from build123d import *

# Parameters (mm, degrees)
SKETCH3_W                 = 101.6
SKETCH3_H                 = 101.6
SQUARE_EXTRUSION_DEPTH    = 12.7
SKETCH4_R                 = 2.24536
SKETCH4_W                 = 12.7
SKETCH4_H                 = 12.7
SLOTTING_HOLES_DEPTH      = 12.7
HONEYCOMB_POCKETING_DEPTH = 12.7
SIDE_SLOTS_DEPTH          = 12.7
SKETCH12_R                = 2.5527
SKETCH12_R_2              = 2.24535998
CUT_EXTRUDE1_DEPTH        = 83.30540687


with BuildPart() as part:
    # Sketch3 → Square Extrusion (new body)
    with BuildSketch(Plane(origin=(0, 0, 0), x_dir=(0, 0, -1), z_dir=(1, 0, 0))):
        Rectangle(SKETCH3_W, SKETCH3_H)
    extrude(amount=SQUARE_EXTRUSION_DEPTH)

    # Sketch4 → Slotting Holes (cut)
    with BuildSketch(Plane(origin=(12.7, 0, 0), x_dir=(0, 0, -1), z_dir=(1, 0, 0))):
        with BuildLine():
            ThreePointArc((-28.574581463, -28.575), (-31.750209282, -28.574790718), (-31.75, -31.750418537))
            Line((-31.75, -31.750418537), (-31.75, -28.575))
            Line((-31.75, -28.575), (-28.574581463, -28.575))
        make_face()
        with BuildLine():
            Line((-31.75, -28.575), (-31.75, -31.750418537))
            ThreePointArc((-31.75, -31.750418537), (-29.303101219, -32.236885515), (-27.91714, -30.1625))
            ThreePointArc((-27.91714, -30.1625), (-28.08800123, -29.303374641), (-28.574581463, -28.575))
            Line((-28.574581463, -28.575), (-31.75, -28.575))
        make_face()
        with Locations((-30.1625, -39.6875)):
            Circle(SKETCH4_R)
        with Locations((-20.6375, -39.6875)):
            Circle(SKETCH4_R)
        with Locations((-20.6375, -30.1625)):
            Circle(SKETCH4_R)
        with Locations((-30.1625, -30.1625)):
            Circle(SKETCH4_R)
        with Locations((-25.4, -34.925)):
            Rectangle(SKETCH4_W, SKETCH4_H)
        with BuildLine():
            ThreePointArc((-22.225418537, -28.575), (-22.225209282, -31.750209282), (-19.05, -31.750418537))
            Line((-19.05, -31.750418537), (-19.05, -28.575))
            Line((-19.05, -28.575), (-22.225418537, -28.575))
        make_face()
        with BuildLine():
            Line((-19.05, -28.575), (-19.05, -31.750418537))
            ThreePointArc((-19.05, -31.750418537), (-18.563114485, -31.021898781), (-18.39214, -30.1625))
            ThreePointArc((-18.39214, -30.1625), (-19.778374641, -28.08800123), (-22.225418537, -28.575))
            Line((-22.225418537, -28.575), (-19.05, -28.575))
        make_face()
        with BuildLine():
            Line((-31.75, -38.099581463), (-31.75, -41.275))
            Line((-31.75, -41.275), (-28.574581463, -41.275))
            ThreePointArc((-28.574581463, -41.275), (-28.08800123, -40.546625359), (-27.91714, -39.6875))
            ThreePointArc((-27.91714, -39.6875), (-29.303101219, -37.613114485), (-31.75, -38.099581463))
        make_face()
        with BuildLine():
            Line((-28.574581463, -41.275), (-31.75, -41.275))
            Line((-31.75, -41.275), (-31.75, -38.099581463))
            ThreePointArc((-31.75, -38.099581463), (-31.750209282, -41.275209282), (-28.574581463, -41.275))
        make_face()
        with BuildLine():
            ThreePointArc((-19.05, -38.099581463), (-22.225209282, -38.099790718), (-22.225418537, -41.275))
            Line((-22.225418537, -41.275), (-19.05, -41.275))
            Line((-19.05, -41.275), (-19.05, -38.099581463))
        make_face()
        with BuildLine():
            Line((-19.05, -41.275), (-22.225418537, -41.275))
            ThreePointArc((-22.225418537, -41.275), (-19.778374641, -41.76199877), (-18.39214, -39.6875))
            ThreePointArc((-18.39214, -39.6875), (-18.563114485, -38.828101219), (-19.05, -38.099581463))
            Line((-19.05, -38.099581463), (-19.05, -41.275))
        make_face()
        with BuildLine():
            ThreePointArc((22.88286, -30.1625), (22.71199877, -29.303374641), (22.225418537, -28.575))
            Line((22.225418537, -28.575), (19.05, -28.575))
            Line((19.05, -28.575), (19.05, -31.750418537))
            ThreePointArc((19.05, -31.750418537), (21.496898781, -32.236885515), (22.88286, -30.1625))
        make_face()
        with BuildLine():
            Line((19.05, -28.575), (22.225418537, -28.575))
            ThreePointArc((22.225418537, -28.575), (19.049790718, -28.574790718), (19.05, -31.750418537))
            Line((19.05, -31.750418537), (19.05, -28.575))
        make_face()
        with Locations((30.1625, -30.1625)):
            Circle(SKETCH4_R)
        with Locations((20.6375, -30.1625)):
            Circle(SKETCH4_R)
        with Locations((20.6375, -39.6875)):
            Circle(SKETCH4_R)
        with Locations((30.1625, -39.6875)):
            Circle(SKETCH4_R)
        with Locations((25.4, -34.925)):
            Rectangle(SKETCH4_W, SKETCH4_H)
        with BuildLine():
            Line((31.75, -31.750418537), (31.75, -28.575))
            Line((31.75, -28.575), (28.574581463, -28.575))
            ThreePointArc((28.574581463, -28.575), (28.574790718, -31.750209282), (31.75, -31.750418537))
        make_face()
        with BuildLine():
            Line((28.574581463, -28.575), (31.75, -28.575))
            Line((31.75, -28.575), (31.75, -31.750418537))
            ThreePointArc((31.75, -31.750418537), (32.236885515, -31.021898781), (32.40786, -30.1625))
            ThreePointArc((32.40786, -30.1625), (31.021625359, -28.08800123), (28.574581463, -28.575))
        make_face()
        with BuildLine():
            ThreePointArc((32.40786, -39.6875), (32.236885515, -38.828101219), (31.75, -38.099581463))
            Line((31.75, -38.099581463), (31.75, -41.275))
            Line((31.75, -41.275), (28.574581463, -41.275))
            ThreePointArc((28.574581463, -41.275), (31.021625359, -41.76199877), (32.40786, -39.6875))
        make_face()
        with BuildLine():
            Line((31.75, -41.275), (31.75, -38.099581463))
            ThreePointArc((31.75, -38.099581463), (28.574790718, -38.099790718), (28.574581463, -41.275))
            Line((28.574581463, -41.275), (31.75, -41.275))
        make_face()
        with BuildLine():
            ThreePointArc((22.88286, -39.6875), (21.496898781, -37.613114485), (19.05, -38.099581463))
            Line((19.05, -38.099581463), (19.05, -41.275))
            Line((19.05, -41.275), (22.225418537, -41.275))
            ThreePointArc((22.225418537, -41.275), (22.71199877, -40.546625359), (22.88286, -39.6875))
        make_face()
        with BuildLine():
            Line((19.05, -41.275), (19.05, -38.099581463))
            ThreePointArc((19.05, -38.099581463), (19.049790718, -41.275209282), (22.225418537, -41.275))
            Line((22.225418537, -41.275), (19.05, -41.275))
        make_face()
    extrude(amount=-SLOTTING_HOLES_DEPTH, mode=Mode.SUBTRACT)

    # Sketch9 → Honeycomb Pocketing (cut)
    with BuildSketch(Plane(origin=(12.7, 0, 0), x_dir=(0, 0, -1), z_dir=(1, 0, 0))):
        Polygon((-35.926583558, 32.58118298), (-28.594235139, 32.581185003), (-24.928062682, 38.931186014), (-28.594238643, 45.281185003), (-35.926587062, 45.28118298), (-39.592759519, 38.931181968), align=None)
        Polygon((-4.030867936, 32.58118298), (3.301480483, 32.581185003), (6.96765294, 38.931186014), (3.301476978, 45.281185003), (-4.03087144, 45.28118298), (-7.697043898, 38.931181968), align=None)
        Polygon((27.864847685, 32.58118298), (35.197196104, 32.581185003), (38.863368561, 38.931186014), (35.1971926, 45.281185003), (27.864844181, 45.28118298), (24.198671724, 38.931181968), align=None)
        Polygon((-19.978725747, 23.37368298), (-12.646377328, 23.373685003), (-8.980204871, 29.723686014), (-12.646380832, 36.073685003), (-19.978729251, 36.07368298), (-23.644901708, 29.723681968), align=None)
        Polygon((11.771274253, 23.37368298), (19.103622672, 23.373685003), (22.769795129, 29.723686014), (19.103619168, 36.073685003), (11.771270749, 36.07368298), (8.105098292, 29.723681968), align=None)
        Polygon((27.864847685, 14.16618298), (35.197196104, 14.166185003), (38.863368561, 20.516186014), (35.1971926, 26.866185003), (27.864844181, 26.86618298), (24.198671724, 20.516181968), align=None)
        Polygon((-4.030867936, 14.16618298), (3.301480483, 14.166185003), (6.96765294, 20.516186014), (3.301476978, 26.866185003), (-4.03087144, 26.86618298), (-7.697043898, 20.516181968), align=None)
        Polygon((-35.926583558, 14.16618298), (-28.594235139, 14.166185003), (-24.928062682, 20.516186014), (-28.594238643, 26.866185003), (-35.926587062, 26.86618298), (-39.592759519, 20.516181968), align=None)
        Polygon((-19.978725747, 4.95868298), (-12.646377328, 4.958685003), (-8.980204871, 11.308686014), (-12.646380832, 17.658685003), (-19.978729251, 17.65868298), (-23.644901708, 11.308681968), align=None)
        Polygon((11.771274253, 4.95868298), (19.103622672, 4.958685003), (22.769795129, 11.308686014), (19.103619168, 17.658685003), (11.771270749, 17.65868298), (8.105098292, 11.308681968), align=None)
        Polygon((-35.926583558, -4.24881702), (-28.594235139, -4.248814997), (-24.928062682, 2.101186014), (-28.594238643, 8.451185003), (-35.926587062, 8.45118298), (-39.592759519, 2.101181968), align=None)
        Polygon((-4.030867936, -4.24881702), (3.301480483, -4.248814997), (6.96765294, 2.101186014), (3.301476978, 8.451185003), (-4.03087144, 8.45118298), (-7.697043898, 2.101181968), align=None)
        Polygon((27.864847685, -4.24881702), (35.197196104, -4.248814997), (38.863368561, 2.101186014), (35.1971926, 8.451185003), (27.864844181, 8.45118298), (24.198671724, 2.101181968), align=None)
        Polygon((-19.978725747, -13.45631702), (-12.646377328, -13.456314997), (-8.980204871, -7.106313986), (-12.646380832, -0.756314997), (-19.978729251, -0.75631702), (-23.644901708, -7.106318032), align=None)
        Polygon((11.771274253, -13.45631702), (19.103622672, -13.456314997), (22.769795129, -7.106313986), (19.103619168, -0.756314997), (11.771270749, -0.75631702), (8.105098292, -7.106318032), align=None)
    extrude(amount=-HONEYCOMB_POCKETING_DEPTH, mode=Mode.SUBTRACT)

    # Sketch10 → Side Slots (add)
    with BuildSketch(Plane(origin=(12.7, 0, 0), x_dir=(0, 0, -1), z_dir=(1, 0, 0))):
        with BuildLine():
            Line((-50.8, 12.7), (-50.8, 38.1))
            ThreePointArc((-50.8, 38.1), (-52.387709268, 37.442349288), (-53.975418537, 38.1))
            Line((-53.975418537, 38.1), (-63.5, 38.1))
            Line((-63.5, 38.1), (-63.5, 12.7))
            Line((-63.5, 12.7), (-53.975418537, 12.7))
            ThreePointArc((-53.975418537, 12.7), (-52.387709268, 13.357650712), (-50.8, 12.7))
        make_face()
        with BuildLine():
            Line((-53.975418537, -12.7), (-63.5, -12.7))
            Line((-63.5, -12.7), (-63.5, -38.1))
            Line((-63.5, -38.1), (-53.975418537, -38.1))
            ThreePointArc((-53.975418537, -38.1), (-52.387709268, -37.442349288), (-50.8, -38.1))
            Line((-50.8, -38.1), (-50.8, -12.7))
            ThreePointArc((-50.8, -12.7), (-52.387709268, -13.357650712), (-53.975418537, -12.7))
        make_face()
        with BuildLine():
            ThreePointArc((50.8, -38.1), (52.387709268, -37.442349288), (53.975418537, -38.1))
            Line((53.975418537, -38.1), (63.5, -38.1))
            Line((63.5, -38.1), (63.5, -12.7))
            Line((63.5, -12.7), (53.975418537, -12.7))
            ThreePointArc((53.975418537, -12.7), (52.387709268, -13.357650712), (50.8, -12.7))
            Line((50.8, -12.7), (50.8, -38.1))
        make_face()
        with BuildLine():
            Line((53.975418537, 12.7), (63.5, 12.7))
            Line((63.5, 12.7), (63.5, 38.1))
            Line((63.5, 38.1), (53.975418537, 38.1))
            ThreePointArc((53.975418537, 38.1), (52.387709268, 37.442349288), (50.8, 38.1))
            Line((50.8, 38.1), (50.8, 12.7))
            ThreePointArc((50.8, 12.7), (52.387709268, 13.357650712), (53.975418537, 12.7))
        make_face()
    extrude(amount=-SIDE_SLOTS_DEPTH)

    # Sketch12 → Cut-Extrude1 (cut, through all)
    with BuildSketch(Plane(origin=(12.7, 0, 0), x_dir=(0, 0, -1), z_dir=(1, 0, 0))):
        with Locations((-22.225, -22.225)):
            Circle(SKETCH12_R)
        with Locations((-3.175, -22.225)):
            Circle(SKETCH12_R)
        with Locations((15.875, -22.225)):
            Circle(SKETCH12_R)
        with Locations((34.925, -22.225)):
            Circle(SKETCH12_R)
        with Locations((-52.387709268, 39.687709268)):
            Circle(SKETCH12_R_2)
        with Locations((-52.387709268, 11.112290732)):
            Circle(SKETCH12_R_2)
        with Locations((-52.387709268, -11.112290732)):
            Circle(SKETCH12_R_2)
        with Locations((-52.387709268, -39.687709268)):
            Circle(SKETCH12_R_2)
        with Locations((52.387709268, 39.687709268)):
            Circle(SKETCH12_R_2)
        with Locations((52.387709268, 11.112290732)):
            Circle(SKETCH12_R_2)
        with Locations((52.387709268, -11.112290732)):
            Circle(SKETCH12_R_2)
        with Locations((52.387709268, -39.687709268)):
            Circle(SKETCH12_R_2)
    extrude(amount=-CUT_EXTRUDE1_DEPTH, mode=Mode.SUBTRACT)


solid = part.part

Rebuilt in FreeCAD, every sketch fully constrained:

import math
import FreeCAD as App
import Part
import Sketcher
from FreeCAD import Vector
Q = App.Units.Quantity


def add_polygon(sketch, points):
    """Adds a closed chain of lines whose ends are joined by coincident constraints."""
    first, n = sketch.GeometryCount, len(points)
    for a, b in zip(points, points[1:] + points[:1]):
        sketch.addGeometry(Part.LineSegment(App.Vector(*a, 0), App.Vector(*b, 0)), False)
    for i in range(n):
        sketch.addConstraint(Sketcher.Constraint("Coincident", first + i, 2, first + (i + 1) % n, 1))

doc = App.newDocument("Part")
body = doc.addObject("PartDesign::Body", "Body")

sketch1 = body.newObject("Sketcher::SketchObject", "Sketch")
sketch1.AttachmentSupport = (doc.getObject("YZ_Plane"), [""])
sketch1.MapMode = "FlatFace"
add_polygon(sketch1, [(50.8, 50.8), (-50.8, 50.8), (-50.8, -50.8), (50.8, -50.8)])
sketch1.addConstraint(Sketcher.Constraint("Horizontal", 0))
sketch1.addConstraint(Sketcher.Constraint("Vertical", 1))
sketch1.addConstraint(Sketcher.Constraint("Horizontal", 2))
sketch1.addConstraint(Sketcher.Constraint("Vertical", 3))
sketch1.addConstraint(Sketcher.Constraint("Symmetric", 0, 2, 2, 2, -1, 1))
sketch1.addConstraint(Sketcher.Constraint("Equal", 2, 1))
sketch1.addConstraint(Sketcher.Constraint("DistanceX", 0, 2, 0, 1, Q("4 in")))
pad1 = body.newObject("PartDesign::Pad", "Pad")
pad1.Profile = sketch1
pad1.Length = Q("0.5 in")

sketch2 = body.newObject("Sketcher::SketchObject", "Sketch001")
sketch2.AttachmentSupport = (doc.getObject("YZ_Plane"), [""])
sketch2.MapMode = "FlatFace"
sketch2.AttachmentOffset = App.Placement(Vector(0, 0, 0.5 * 25.4), App.Rotation())
sketch2.addGeometry(Part.LineSegment(Vector(-28.575, 22.225419, 0), Vector(-28.575, 28.574581, 0)), False)
sketch2.addGeometry(Part.ArcOfCircle(Part.Circle(Vector(-30.1625, 30.1625, 0), Vector(0, 0, 1), 2.24536), math.radians(-45.007552), math.radians(135.007552)), False)
sketch2.addGeometry(Part.LineSegment(Vector(-31.750419, 31.75, 0), Vector(-38.099581, 31.75, 0)), False)
sketch2.addGeometry(Part.ArcOfCircle(Part.Circle(Vector(-39.6875, 30.1625, 0), Vector(0, 0, 1), 2.24536), math.radians(44.992448), math.radians(225.007552)), False)
sketch2.addGeometry(Part.LineSegment(Vector(-41.275, 28.574581, 0), Vector(-41.275, 22.225419, 0)), False)
sketch2.addGeometry(Part.ArcOfCircle(Part.Circle(Vector(-39.6875, 20.6375, 0), Vector(0, 0, 1), 2.24536), math.radians(134.992448), math.radians(315.007552)), False)
sketch2.addGeometry(Part.LineSegment(Vector(-38.099581, 19.05, 0), Vector(-31.750419, 19.05, 0)), False)
sketch2.addGeometry(Part.ArcOfCircle(Part.Circle(Vector(-30.1625, 20.6375, 0), Vector(0, 0, 1), 2.24536), math.radians(-135.007552), math.radians(45.007552)), False)
sketch2.addGeometry(Part.ArcOfCircle(Part.Circle(Vector(-39.6875, -20.6375, 0), Vector(0, 0, 1), 2.24536), math.radians(44.992448), math.radians(225.007552)), False)
sketch2.addGeometry(Part.LineSegment(Vector(-41.275, -22.225419, 0), Vector(-41.275, -28.574581, 0)), False)
sketch2.addGeometry(Part.ArcOfCircle(Part.Circle(Vector(-39.6875, -30.1625, 0), Vector(0, 0, 1), 2.24536), math.radians(134.992448), math.radians(315.007552)), False)
sketch2.addGeometry(Part.LineSegment(Vector(-38.099581, -31.75, 0), Vector(-31.750419, -31.75, 0)), False)
sketch2.addGeometry(Part.ArcOfCircle(Part.Circle(Vector(-30.1625, -30.1625, 0), Vector(0, 0, 1), 2.24536), math.radians(-135.007552), math.radians(45.007552)), False)
sketch2.addGeometry(Part.LineSegment(Vector(-28.575, -28.574581, 0), Vector(-28.575, -22.225419, 0)), False)
sketch2.addGeometry(Part.ArcOfCircle(Part.Circle(Vector(-30.1625, -20.6375, 0), Vector(0, 0, 1), 2.24536), math.radians(-45.007552), math.radians(135.007552)), False)
sketch2.addGeometry(Part.LineSegment(Vector(-31.750419, -19.05, 0), Vector(-38.099581, -19.05, 0)), False)
sketch2.addConstraint(Sketcher.Constraint("Coincident", 0, 2, 1, 1))
sketch2.addConstraint(Sketcher.Constraint("Coincident", 1, 2, 2, 1))
sketch2.addConstraint(Sketcher.Constraint("Coincident", 2, 2, 3, 1))
sketch2.addConstraint(Sketcher.Constraint("Coincident", 3, 2, 4, 1))
sketch2.addConstraint(Sketcher.Constraint("Coincident", 4, 2, 5, 1))
sketch2.addConstraint(Sketcher.Constraint("Coincident", 5, 2, 6, 1))
sketch2.addConstraint(Sketcher.Constraint("Coincident", 6, 2, 7, 1))
sketch2.addConstraint(Sketcher.Constraint("Coincident", 7, 2, 0, 1))
sketch2.addConstraint(Sketcher.Constraint("Coincident", 8, 2, 9, 1))
sketch2.addConstraint(Sketcher.Constraint("Coincident", 9, 2, 10, 1))
sketch2.addConstraint(Sketcher.Constraint("Coincident", 10, 2, 11, 1))
sketch2.addConstraint(Sketcher.Constraint("Coincident", 11, 2, 12, 1))
sketch2.addConstraint(Sketcher.Constraint("Coincident", 12, 2, 13, 1))
sketch2.addConstraint(Sketcher.Constraint("Coincident", 13, 2, 14, 1))
sketch2.addConstraint(Sketcher.Constraint("Coincident", 14, 2, 15, 1))
sketch2.addConstraint(Sketcher.Constraint("Coincident", 15, 2, 8, 1))
sketch2.addConstraint(Sketcher.Constraint("Vertical", 0))
sketch2.addConstraint(Sketcher.Constraint("Horizontal", 2))
sketch2.addConstraint(Sketcher.Constraint("Vertical", 4))
sketch2.addConstraint(Sketcher.Constraint("Horizontal", 6))
sketch2.addConstraint(Sketcher.Constraint("Vertical", 9))
sketch2.addConstraint(Sketcher.Constraint("Horizontal", 11))
sketch2.addConstraint(Sketcher.Constraint("Vertical", 13))
sketch2.addConstraint(Sketcher.Constraint("Horizontal", 15))
sketch2.addConstraint(Sketcher.Constraint("Equal", 1, 3))
sketch2.addConstraint(Sketcher.Constraint("Equal", 3, 5))
sketch2.addConstraint(Sketcher.Constraint("Equal", 5, 7))
sketch2.addConstraint(Sketcher.Constraint("Equal", 7, 8))
sketch2.addConstraint(Sketcher.Constraint("Equal", 8, 10))
sketch2.addConstraint(Sketcher.Constraint("Equal", 10, 12))
sketch2.addConstraint(Sketcher.Constraint("Equal", 12, 14))
sketch2.addConstraint(Sketcher.Constraint("Symmetric", 5, 3, 8, 3, -1))
sketch2.addConstraint(Sketcher.Constraint("Symmetric", 3, 3, 10, 3, -1))
sketch2.addConstraint(Sketcher.Constraint("Symmetric", 1, 3, 12, 3, -1))
sketch2.addConstraint(Sketcher.Constraint("Symmetric", 7, 3, 14, 3, -1))
sketch2.addConstraint(Sketcher.Constraint("Horizontal", 1, 3, 3, 3))
sketch2.addConstraint(Sketcher.Constraint("Horizontal", 5, 3, 7, 3))
sketch2.addConstraint(Sketcher.Constraint("Horizontal", 0, 2, 3, 2))
sketch2.addConstraint(Sketcher.Constraint("Horizontal", 4, 2, 7, 2))
sketch2.addConstraint(Sketcher.Constraint("Horizontal", 9, 2, 12, 2))
sketch2.addConstraint(Sketcher.Constraint("Vertical", 3, 3, 5, 3))
sketch2.addConstraint(Sketcher.Constraint("Vertical", 2, 2, 5, 2))
sketch2.addConstraint(Sketcher.Constraint("Vertical", 4, 2, 8, 2))
sketch2.addConstraint(Sketcher.Constraint("Vertical", 5, 2, 10, 2))
sketch2.addConstraint(Sketcher.Constraint("Vertical", 11, 2, 14, 2))
sketch2.addConstraint(Sketcher.Constraint("Equal", 15, 0))
sketch2.addConstraint(Sketcher.Constraint("DistanceY", 8, 3, 3, 3, Q("2 in")))
sketch2.addConstraint(Sketcher.Constraint("Radius", 1, Q("0.0884 in")))
sketch2.addConstraint(Sketcher.Constraint("DistanceY", -1, 1, 1, 2, Q("1.25 in")))
sketch2.addConstraint(Sketcher.Constraint("DistanceX", 1, 3, -1, 1, Q("1.1875 in")))
sketch2.addConstraint(Sketcher.Constraint("DistanceY", -1, 1, 1, 3, Q("1.1875 in")))
sketch2.addConstraint(Sketcher.Constraint("DistanceX", 3, 3, -1, 1, Q("1.5625 in")))
pocket1 = body.newObject("PartDesign::Pocket", "Pocket")
pocket1.Profile = sketch2
pocket1.Length = Q("0.5 in")

sketch3 = body.newObject("Sketcher::SketchObject", "Sketch002")
sketch3.AttachmentSupport = (doc.getObject("YZ_Plane"), [""])
sketch3.MapMode = "FlatFace"
sketch3.AttachmentOffset = App.Placement(Vector(0, 0, 0.5 * 25.4), App.Rotation())
add_polygon(sketch3, [(32.581183, 35.926584), (32.581185, 28.594235), (38.931186, 24.928063), (45.281185, 28.594239), (45.281183, 35.926587), (38.931182, 39.59276)])
add_polygon(sketch3, [(32.581183, 4.030868), (32.581185, -3.30148), (38.931186, -6.967653), (45.281185, -3.301477), (45.281183, 4.030871), (38.931182, 7.697044)])
add_polygon(sketch3, [(32.581183, -27.864848), (32.581185, -35.197196), (38.931186, -38.863369), (45.281185, -35.197193), (45.281183, -27.864844), (38.931182, -24.198672)])
add_polygon(sketch3, [(23.373683, 19.978726), (23.373685, 12.646377), (29.723686, 8.980205), (36.073685, 12.646381), (36.073683, 19.978729), (29.723682, 23.644902)])
add_polygon(sketch3, [(23.373683, -11.771274), (23.373685, -19.103623), (29.723686, -22.769795), (36.073685, -19.103619), (36.073683, -11.771271), (29.723682, -8.105098)])
add_polygon(sketch3, [(14.166183, -27.864848), (14.166185, -35.197196), (20.516186, -38.863369), (26.866185, -35.197193), (26.866183, -27.864844), (20.516182, -24.198672)])
add_polygon(sketch3, [(14.166183, 4.030868), (14.166185, -3.30148), (20.516186, -6.967653), (26.866185, -3.301477), (26.866183, 4.030871), (20.516182, 7.697044)])
add_polygon(sketch3, [(14.166183, 35.926584), (14.166185, 28.594235), (20.516186, 24.928063), (26.866185, 28.594239), (26.866183, 35.926587), (20.516182, 39.59276)])
add_polygon(sketch3, [(4.958683, 19.978726), (4.958685, 12.646377), (11.308686, 8.980205), (17.658685, 12.646381), (17.658683, 19.978729), (11.308682, 23.644902)])
add_polygon(sketch3, [(4.958683, -11.771274), (4.958685, -19.103623), (11.308686, -22.769795), (17.658685, -19.103619), (17.658683, -11.771271), (11.308682, -8.105098)])
add_polygon(sketch3, [(-4.248817, 35.926584), (-4.248815, 28.594235), (2.101186, 24.928063), (8.451185, 28.594239), (8.451183, 35.926587), (2.101182, 39.59276)])
add_polygon(sketch3, [(-4.248817, 4.030868), (-4.248815, -3.30148), (2.101186, -6.967653), (8.451185, -3.301477), (8.451183, 4.030871), (2.101182, 7.697044)])
add_polygon(sketch3, [(-4.248817, -27.864848), (-4.248815, -35.197196), (2.101186, -38.863369), (8.451185, -35.197193), (8.451183, -27.864844), (2.101182, -24.198672)])
add_polygon(sketch3, [(-13.456317, 19.978726), (-13.456315, 12.646377), (-7.106314, 8.980205), (-0.756315, 12.646381), (-0.756317, 19.978729), (-7.106318, 23.644902)])
add_polygon(sketch3, [(-13.456317, -11.771274), (-13.456315, -19.103623), (-7.106314, -22.769795), (-0.756315, -19.103619), (-0.756317, -11.771271), (-7.106318, -8.105098)])
sketch3.addConstraint(Sketcher.Constraint("Parallel", 0, 3))
sketch3.addConstraint(Sketcher.Constraint("Parallel", 1, 4))
sketch3.addConstraint(Sketcher.Constraint("Parallel", 2, 5))
sketch3.addConstraint(Sketcher.Constraint("Parallel", 3, 6))
sketch3.addConstraint(Sketcher.Constraint("Parallel", 4, 7))
sketch3.addConstraint(Sketcher.Constraint("Parallel", 5, 8))
sketch3.addConstraint(Sketcher.Constraint("Parallel", 6, 9))
sketch3.addConstraint(Sketcher.Constraint("Parallel", 7, 10))
sketch3.addConstraint(Sketcher.Constraint("Parallel", 8, 11))
sketch3.addConstraint(Sketcher.Constraint("Parallel", 9, 12))
sketch3.addConstraint(Sketcher.Constraint("Parallel", 10, 13))
sketch3.addConstraint(Sketcher.Constraint("Parallel", 11, 14))
sketch3.addConstraint(Sketcher.Constraint("Parallel", 12, 15))
sketch3.addConstraint(Sketcher.Constraint("Parallel", 13, 16))
sketch3.addConstraint(Sketcher.Constraint("Parallel", 14, 17))
sketch3.addConstraint(Sketcher.Constraint("Parallel", 15, 18))
sketch3.addConstraint(Sketcher.Constraint("Parallel", 16, 19))
sketch3.addConstraint(Sketcher.Constraint("Parallel", 17, 20))
sketch3.addConstraint(Sketcher.Constraint("Parallel", 18, 21))
sketch3.addConstraint(Sketcher.Constraint("Parallel", 19, 22))
sketch3.addConstraint(Sketcher.Constraint("Parallel", 20, 23))
sketch3.addConstraint(Sketcher.Constraint("Parallel", 21, 24))
sketch3.addConstraint(Sketcher.Constraint("Parallel", 22, 25))
sketch3.addConstraint(Sketcher.Constraint("Parallel", 23, 26))
sketch3.addConstraint(Sketcher.Constraint("Parallel", 24, 27))
sketch3.addConstraint(Sketcher.Constraint("Parallel", 25, 28))
sketch3.addConstraint(Sketcher.Constraint("Parallel", 26, 29))
sketch3.addConstraint(Sketcher.Constraint("Parallel", 27, 30))
sketch3.addConstraint(Sketcher.Constraint("Parallel", 28, 31))
sketch3.addConstraint(Sketcher.Constraint("Parallel", 29, 32))
sketch3.addConstraint(Sketcher.Constraint("Parallel", 30, 33))
sketch3.addConstraint(Sketcher.Constraint("Parallel", 31, 34))
sketch3.addConstraint(Sketcher.Constraint("Parallel", 32, 35))
sketch3.addConstraint(Sketcher.Constraint("Parallel", 33, 36))
sketch3.addConstraint(Sketcher.Constraint("Parallel", 34, 37))
sketch3.addConstraint(Sketcher.Constraint("Parallel", 35, 38))
sketch3.addConstraint(Sketcher.Constraint("Parallel", 36, 39))
sketch3.addConstraint(Sketcher.Constraint("Parallel", 37, 40))
sketch3.addConstraint(Sketcher.Constraint("Parallel", 38, 41))
sketch3.addConstraint(Sketcher.Constraint("Parallel", 39, 42))
sketch3.addConstraint(Sketcher.Constraint("Parallel", 40, 43))
sketch3.addConstraint(Sketcher.Constraint("Parallel", 41, 44))
sketch3.addConstraint(Sketcher.Constraint("Parallel", 42, 45))
sketch3.addConstraint(Sketcher.Constraint("Parallel", 43, 46))
sketch3.addConstraint(Sketcher.Constraint("Parallel", 44, 47))
sketch3.addConstraint(Sketcher.Constraint("Parallel", 45, 48))
sketch3.addConstraint(Sketcher.Constraint("Parallel", 46, 49))
sketch3.addConstraint(Sketcher.Constraint("Parallel", 47, 50))
sketch3.addConstraint(Sketcher.Constraint("Parallel", 48, 51))
sketch3.addConstraint(Sketcher.Constraint("Parallel", 49, 52))
sketch3.addConstraint(Sketcher.Constraint("Parallel", 50, 53))
sketch3.addConstraint(Sketcher.Constraint("Parallel", 51, 54))
sketch3.addConstraint(Sketcher.Constraint("Parallel", 52, 55))
sketch3.addConstraint(Sketcher.Constraint("Parallel", 53, 56))
sketch3.addConstraint(Sketcher.Constraint("Parallel", 54, 57))
sketch3.addConstraint(Sketcher.Constraint("Parallel", 55, 58))
sketch3.addConstraint(Sketcher.Constraint("Parallel", 56, 59))
sketch3.addConstraint(Sketcher.Constraint("Parallel", 57, 60))
sketch3.addConstraint(Sketcher.Constraint("Parallel", 58, 61))
sketch3.addConstraint(Sketcher.Constraint("Parallel", 59, 62))
sketch3.addConstraint(Sketcher.Constraint("Parallel", 60, 63))
sketch3.addConstraint(Sketcher.Constraint("Parallel", 61, 64))
sketch3.addConstraint(Sketcher.Constraint("Parallel", 62, 65))
sketch3.addConstraint(Sketcher.Constraint("Parallel", 63, 66))
sketch3.addConstraint(Sketcher.Constraint("Parallel", 64, 67))
sketch3.addConstraint(Sketcher.Constraint("Parallel", 65, 68))
sketch3.addConstraint(Sketcher.Constraint("Parallel", 66, 69))
sketch3.addConstraint(Sketcher.Constraint("Parallel", 67, 70))
sketch3.addConstraint(Sketcher.Constraint("Parallel", 68, 71))
sketch3.addConstraint(Sketcher.Constraint("Parallel", 69, 72))
sketch3.addConstraint(Sketcher.Constraint("Parallel", 70, 73))
sketch3.addConstraint(Sketcher.Constraint("Parallel", 71, 74))
sketch3.addConstraint(Sketcher.Constraint("Parallel", 72, 75))
sketch3.addConstraint(Sketcher.Constraint("Parallel", 73, 76))
sketch3.addConstraint(Sketcher.Constraint("Parallel", 74, 77))
sketch3.addConstraint(Sketcher.Constraint("Parallel", 75, 78))
sketch3.addConstraint(Sketcher.Constraint("Parallel", 76, 79))
sketch3.addConstraint(Sketcher.Constraint("Parallel", 77, 80))
sketch3.addConstraint(Sketcher.Constraint("Parallel", 78, 81))
sketch3.addConstraint(Sketcher.Constraint("Parallel", 79, 82))
sketch3.addConstraint(Sketcher.Constraint("Parallel", 80, 83))
sketch3.addConstraint(Sketcher.Constraint("Parallel", 81, 84))
sketch3.addConstraint(Sketcher.Constraint("Parallel", 82, 85))
sketch3.addConstraint(Sketcher.Constraint("Parallel", 83, 86))
sketch3.addConstraint(Sketcher.Constraint("Parallel", 84, 87))
sketch3.addConstraint(Sketcher.Constraint("Parallel", 85, 88))
sketch3.addConstraint(Sketcher.Constraint("Parallel", 86, 89))
sketch3.addConstraint(Sketcher.Constraint("Horizontal", 12, 2, 30, 2))
sketch3.addConstraint(Sketcher.Constraint("Horizontal", 13, 2, 31, 2))
sketch3.addConstraint(Sketcher.Constraint("Horizontal", 14, 2, 32, 2))
sketch3.addConstraint(Sketcher.Constraint("Horizontal", 15, 2, 33, 2))
sketch3.addConstraint(Sketcher.Constraint("Horizontal", 16, 2, 34, 2))
sketch3.addConstraint(Sketcher.Constraint("Horizontal", 6, 2, 36, 2))
sketch3.addConstraint(Sketcher.Constraint("Horizontal", 7, 2, 37, 2))
sketch3.addConstraint(Sketcher.Constraint("Horizontal", 8, 2, 38, 2))
sketch3.addConstraint(Sketcher.Constraint("Horizontal", 9, 2, 39, 2))
sketch3.addConstraint(Sketcher.Constraint("Horizontal", 10, 2, 40, 2))
sketch3.addConstraint(Sketcher.Constraint("Horizontal", 0, 2, 42, 2))
sketch3.addConstraint(Sketcher.Constraint("Horizontal", 1, 2, 43, 2))
sketch3.addConstraint(Sketcher.Constraint("Horizontal", 2, 2, 44, 2))
sketch3.addConstraint(Sketcher.Constraint("Horizontal", 3, 2, 45, 2))
sketch3.addConstraint(Sketcher.Constraint("Horizontal", 4, 2, 46, 2))
sketch3.addConstraint(Sketcher.Constraint("Horizontal", 18, 2, 48, 2))
sketch3.addConstraint(Sketcher.Constraint("Horizontal", 19, 2, 49, 2))
sketch3.addConstraint(Sketcher.Constraint("Horizontal", 20, 2, 50, 2))
sketch3.addConstraint(Sketcher.Constraint("Horizontal", 21, 2, 51, 2))
sketch3.addConstraint(Sketcher.Constraint("Horizontal", 22, 2, 52, 2))
sketch3.addConstraint(Sketcher.Constraint("Horizontal", 24, 2, 54, 2))
sketch3.addConstraint(Sketcher.Constraint("Horizontal", 25, 2, 55, 2))
sketch3.addConstraint(Sketcher.Constraint("Horizontal", 26, 2, 56, 2))
sketch3.addConstraint(Sketcher.Constraint("Horizontal", 27, 2, 57, 2))
sketch3.addConstraint(Sketcher.Constraint("Horizontal", 28, 2, 58, 2))
sketch3.addConstraint(Sketcher.Constraint("Horizontal", 42, 2, 60, 2))
sketch3.addConstraint(Sketcher.Constraint("Horizontal", 43, 2, 61, 2))
sketch3.addConstraint(Sketcher.Constraint("Horizontal", 44, 2, 62, 2))
sketch3.addConstraint(Sketcher.Constraint("Horizontal", 45, 2, 63, 2))
sketch3.addConstraint(Sketcher.Constraint("Horizontal", 46, 2, 64, 2))
sketch3.addConstraint(Sketcher.Constraint("Horizontal", 36, 2, 66, 2))
sketch3.addConstraint(Sketcher.Constraint("Horizontal", 37, 2, 67, 2))
sketch3.addConstraint(Sketcher.Constraint("Horizontal", 38, 2, 68, 2))
sketch3.addConstraint(Sketcher.Constraint("Horizontal", 39, 2, 69, 2))
sketch3.addConstraint(Sketcher.Constraint("Horizontal", 40, 2, 70, 2))
sketch3.addConstraint(Sketcher.Constraint("Horizontal", 30, 2, 72, 2))
sketch3.addConstraint(Sketcher.Constraint("Horizontal", 31, 2, 73, 2))
sketch3.addConstraint(Sketcher.Constraint("Horizontal", 32, 2, 74, 2))
sketch3.addConstraint(Sketcher.Constraint("Horizontal", 33, 2, 75, 2))
sketch3.addConstraint(Sketcher.Constraint("Horizontal", 34, 2, 76, 2))
sketch3.addConstraint(Sketcher.Constraint("Horizontal", 48, 2, 78, 2))
sketch3.addConstraint(Sketcher.Constraint("Horizontal", 49, 2, 79, 2))
sketch3.addConstraint(Sketcher.Constraint("Horizontal", 50, 2, 80, 2))
sketch3.addConstraint(Sketcher.Constraint("Horizontal", 51, 2, 81, 2))
sketch3.addConstraint(Sketcher.Constraint("Horizontal", 52, 2, 82, 2))
sketch3.addConstraint(Sketcher.Constraint("Horizontal", 54, 2, 84, 2))
sketch3.addConstraint(Sketcher.Constraint("Horizontal", 55, 2, 85, 2))
sketch3.addConstraint(Sketcher.Constraint("Horizontal", 56, 2, 86, 2))
sketch3.addConstraint(Sketcher.Constraint("Horizontal", 57, 2, 87, 2))
sketch3.addConstraint(Sketcher.Constraint("Horizontal", 58, 2, 88, 2))
sketch3.addConstraint(Sketcher.Constraint("Vertical", 0, 2, 6, 2))
sketch3.addConstraint(Sketcher.Constraint("Vertical", 1, 2, 7, 2))
sketch3.addConstraint(Sketcher.Constraint("Vertical", 2, 2, 8, 2))
sketch3.addConstraint(Sketcher.Constraint("Vertical", 4, 2, 10, 2))
sketch3.addConstraint(Sketcher.Constraint("Vertical", 6, 2, 12, 2))
sketch3.addConstraint(Sketcher.Constraint("Vertical", 7, 2, 13, 2))
sketch3.addConstraint(Sketcher.Constraint("Vertical", 8, 2, 14, 2))
sketch3.addConstraint(Sketcher.Constraint("Vertical", 10, 2, 16, 2))
sketch3.addConstraint(Sketcher.Constraint("Vertical", 18, 2, 24, 2))
sketch3.addConstraint(Sketcher.Constraint("Vertical", 19, 2, 25, 2))
sketch3.addConstraint(Sketcher.Constraint("Vertical", 20, 2, 26, 2))
sketch3.addConstraint(Sketcher.Constraint("Vertical", 22, 2, 28, 2))
sketch3.addConstraint(Sketcher.Constraint("Vertical", 30, 2, 36, 2))
sketch3.addConstraint(Sketcher.Constraint("Vertical", 36, 2, 42, 2))
sketch3.addConstraint(Sketcher.Constraint("Vertical", 48, 2, 54, 2))
sketch3.addConstraint(Sketcher.Constraint("Vertical", 60, 2, 66, 2))
sketch3.addConstraint(Sketcher.Constraint("Vertical", 66, 2, 72, 2))
sketch3.addConstraint(Sketcher.Constraint("Vertical", 78, 2, 84, 2))
sketch3.addConstraint(Sketcher.Constraint("Equal", 0, 1))
sketch3.addConstraint(Sketcher.Constraint("Equal", 1, 2))
sketch3.addConstraint(Sketcher.Constraint("Equal", 2, 3))
sketch3.addConstraint(Sketcher.Constraint("Equal", 5, 6))
sketch3.addConstraint(Sketcher.Constraint("Equal", 11, 12))
sketch3.addConstraint(Sketcher.Constraint("Equal", 17, 18))
sketch3.addConstraint(Sketcher.Constraint("Equal", 18, 19))
sketch3.addConstraint(Sketcher.Constraint("Equal", 19, 20))
sketch3.addConstraint(Sketcher.Constraint("Equal", 20, 21))
sketch3.addConstraint(Sketcher.Constraint("Equal", 23, 24))
sketch3.addConstraint(Sketcher.Constraint("Angle", 0, Q("-89.999984 deg")))
sketch3.addConstraint(Sketcher.Constraint("Angle", 1, Q("-29.999984 deg")))
sketch3.addConstraint(Sketcher.Constraint("Angle", 2, Q("30.000016 deg")))
sketch3.addConstraint(Sketcher.Constraint("DistanceY", -1, 1, 22, 2, Q("23.644902 mm")))
sketch3.addConstraint(Sketcher.Constraint("DistanceY", 28, 2, -1, 1, Q("8.105098 mm")))
sketch3.addConstraint(Sketcher.Constraint("Distance", 0, Q("7.332348 mm")))
sketch3.addConstraint(Sketcher.Constraint("DistanceY", -1, 1, 2, 2, Q("28.594239 mm")))
sketch3.addConstraint(Sketcher.Constraint("DistanceX", -1, 1, 4, 2, Q("38.931182 mm")))
sketch3.addConstraint(Sketcher.Constraint("DistanceY", 6, 2, -1, 1, Q("3.30148 mm")))
sketch3.addConstraint(Sketcher.Constraint("DistanceY", 13, 2, -1, 1, Q("38.863369 mm")))
sketch3.addConstraint(Sketcher.Constraint("DistanceX", -1, 1, 22, 2, Q("29.723682 mm")))
sketch3.addConstraint(Sketcher.Constraint("DistanceX", -1, 1, 34, 2, Q("20.516182 mm")))
sketch3.addConstraint(Sketcher.Constraint("DistanceX", -1, 1, 52, 2, Q("11.308682 mm")))
sketch3.addConstraint(Sketcher.Constraint("DistanceX", -1, 1, 64, 2, Q("2.101182 mm")))
sketch3.addConstraint(Sketcher.Constraint("DistanceX", 82, 2, -1, 1, Q("7.106318 mm")))
pocket2 = body.newObject("PartDesign::Pocket", "Pocket001")
pocket2.Profile = sketch3
pocket2.Length = Q("0.5 in")

sketch4 = body.newObject("Sketcher::SketchObject", "Sketch003")
sketch4.AttachmentSupport = (doc.getObject("YZ_Plane"), [""])
sketch4.MapMode = "FlatFace"
sketch4.AttachmentOffset = App.Placement(Vector(0, 0, 0.5 * 25.4), App.Rotation())
sketch4.addGeometry(Part.LineSegment(Vector(12.7, 50.8, 0), Vector(38.1, 50.8, 0)), False)
sketch4.addGeometry(Part.ArcOfCircle(Part.Circle(Vector(39.687709, 52.387709, 0), Vector(0, 0, 1), 2.24536), math.radians(135), math.radians(225)), False)
sketch4.addGeometry(Part.LineSegment(Vector(38.1, 53.975419, 0), Vector(38.1, 63.5, 0)), False)
sketch4.addGeometry(Part.LineSegment(Vector(38.1, 63.5, 0), Vector(12.7, 63.5, 0)), False)
sketch4.addGeometry(Part.LineSegment(Vector(12.7, 63.5, 0), Vector(12.7, 53.975419, 0)), False)
sketch4.addGeometry(Part.ArcOfCircle(Part.Circle(Vector(11.112291, 52.387709, 0), Vector(0, 0, 1), 2.24536), math.radians(-45), math.radians(45)), False)
sketch4.addGeometry(Part.LineSegment(Vector(-12.7, 53.975419, 0), Vector(-12.7, 63.5, 0)), False)
sketch4.addGeometry(Part.LineSegment(Vector(-12.7, 63.5, 0), Vector(-38.1, 63.5, 0)), False)
sketch4.addGeometry(Part.LineSegment(Vector(-38.1, 63.5, 0), Vector(-38.1, 53.975419, 0)), False)
sketch4.addGeometry(Part.ArcOfCircle(Part.Circle(Vector(-39.687709, 52.387709, 0), Vector(0, 0, 1), 2.24536), math.radians(-45), math.radians(45)), False)
sketch4.addGeometry(Part.LineSegment(Vector(-38.1, 50.8, 0), Vector(-12.7, 50.8, 0)), False)
sketch4.addGeometry(Part.ArcOfCircle(Part.Circle(Vector(-11.112291, 52.387709, 0), Vector(0, 0, 1), 2.24536), math.radians(135), math.radians(225)), False)
sketch4.addGeometry(Part.ArcOfCircle(Part.Circle(Vector(-39.687709, -52.387709, 0), Vector(0, 0, 1), 2.24536), math.radians(-45), math.radians(45)), False)
sketch4.addGeometry(Part.LineSegment(Vector(-38.1, -53.975419, 0), Vector(-38.1, -63.5, 0)), False)
sketch4.addGeometry(Part.LineSegment(Vector(-38.1, -63.5, 0), Vector(-12.7, -63.5, 0)), False)
sketch4.addGeometry(Part.LineSegment(Vector(-12.7, -63.5, 0), Vector(-12.7, -53.975419, 0)), False)
sketch4.addGeometry(Part.ArcOfCircle(Part.Circle(Vector(-11.112291, -52.387709, 0), Vector(0, 0, 1), 2.24536), math.radians(135), math.radians(225)), False)
sketch4.addGeometry(Part.LineSegment(Vector(-12.7, -50.8, 0), Vector(-38.1, -50.8, 0)), False)
sketch4.addGeometry(Part.LineSegment(Vector(12.7, -53.975419, 0), Vector(12.7, -63.5, 0)), False)
sketch4.addGeometry(Part.LineSegment(Vector(12.7, -63.5, 0), Vector(38.1, -63.5, 0)), False)
sketch4.addGeometry(Part.LineSegment(Vector(38.1, -63.5, 0), Vector(38.1, -53.975419, 0)), False)
sketch4.addGeometry(Part.ArcOfCircle(Part.Circle(Vector(39.687709, -52.387709, 0), Vector(0, 0, 1), 2.24536), math.radians(135), math.radians(225)), False)
sketch4.addGeometry(Part.LineSegment(Vector(38.1, -50.8, 0), Vector(12.7, -50.8, 0)), False)
sketch4.addGeometry(Part.ArcOfCircle(Part.Circle(Vector(11.112291, -52.387709, 0), Vector(0, 0, 1), 2.24536), math.radians(-45), math.radians(45)), False)
sketch4.addConstraint(Sketcher.Constraint("Coincident", 0, 2, 1, 2))
sketch4.addConstraint(Sketcher.Constraint("Coincident", 1, 1, 2, 1))
sketch4.addConstraint(Sketcher.Constraint("Coincident", 2, 2, 3, 1))
sketch4.addConstraint(Sketcher.Constraint("Coincident", 3, 2, 4, 1))
sketch4.addConstraint(Sketcher.Constraint("Coincident", 4, 2, 5, 2))
sketch4.addConstraint(Sketcher.Constraint("Coincident", 5, 1, 0, 1))
sketch4.addConstraint(Sketcher.Constraint("Coincident", 6, 2, 7, 1))
sketch4.addConstraint(Sketcher.Constraint("Coincident", 7, 2, 8, 1))
sketch4.addConstraint(Sketcher.Constraint("Coincident", 8, 2, 9, 2))
sketch4.addConstraint(Sketcher.Constraint("Coincident", 9, 1, 10, 1))
sketch4.addConstraint(Sketcher.Constraint("Coincident", 10, 2, 11, 2))
sketch4.addConstraint(Sketcher.Constraint("Coincident", 11, 1, 6, 1))
sketch4.addConstraint(Sketcher.Constraint("Coincident", 12, 1, 13, 1))
sketch4.addConstraint(Sketcher.Constraint("Coincident", 13, 2, 14, 1))
sketch4.addConstraint(Sketcher.Constraint("Coincident", 14, 2, 15, 1))
sketch4.addConstraint(Sketcher.Constraint("Coincident", 15, 2, 16, 2))
sketch4.addConstraint(Sketcher.Constraint("Coincident", 16, 1, 17, 1))
sketch4.addConstraint(Sketcher.Constraint("Coincident", 17, 2, 12, 2))
sketch4.addConstraint(Sketcher.Constraint("Coincident", 18, 2, 19, 1))
sketch4.addConstraint(Sketcher.Constraint("Coincident", 19, 2, 20, 1))
sketch4.addConstraint(Sketcher.Constraint("Coincident", 20, 2, 21, 2))
sketch4.addConstraint(Sketcher.Constraint("Coincident", 21, 1, 22, 1))
sketch4.addConstraint(Sketcher.Constraint("Coincident", 22, 2, 23, 2))
sketch4.addConstraint(Sketcher.Constraint("Coincident", 23, 1, 18, 1))
sketch4.addConstraint(Sketcher.Constraint("Horizontal", 0))
sketch4.addConstraint(Sketcher.Constraint("Vertical", 2))
sketch4.addConstraint(Sketcher.Constraint("Horizontal", 3))
sketch4.addConstraint(Sketcher.Constraint("Vertical", 4))
sketch4.addConstraint(Sketcher.Constraint("Vertical", 6))
sketch4.addConstraint(Sketcher.Constraint("Horizontal", 7))
sketch4.addConstraint(Sketcher.Constraint("Vertical", 8))
sketch4.addConstraint(Sketcher.Constraint("Horizontal", 10))
sketch4.addConstraint(Sketcher.Constraint("Vertical", 13))
sketch4.addConstraint(Sketcher.Constraint("Horizontal", 14))
sketch4.addConstraint(Sketcher.Constraint("Vertical", 15))
sketch4.addConstraint(Sketcher.Constraint("Horizontal", 17))
sketch4.addConstraint(Sketcher.Constraint("Vertical", 18))
sketch4.addConstraint(Sketcher.Constraint("Horizontal", 19))
sketch4.addConstraint(Sketcher.Constraint("Vertical", 20))
sketch4.addConstraint(Sketcher.Constraint("Horizontal", 22))
sketch4.addConstraint(Sketcher.Constraint("Equal", 1, 5))
sketch4.addConstraint(Sketcher.Constraint("Equal", 5, 9))
sketch4.addConstraint(Sketcher.Constraint("Equal", 9, 11))
sketch4.addConstraint(Sketcher.Constraint("Equal", 11, 12))
sketch4.addConstraint(Sketcher.Constraint("Equal", 12, 16))
sketch4.addConstraint(Sketcher.Constraint("Equal", 16, 21))
sketch4.addConstraint(Sketcher.Constraint("Equal", 21, 23))
sketch4.addConstraint(Sketcher.Constraint("Symmetric", 1, 3, 12, 3, -1, 1))
sketch4.addConstraint(Sketcher.Constraint("Symmetric", 5, 3, 16, 3, -1, 1))
sketch4.addConstraint(Sketcher.Constraint("Symmetric", 9, 3, 21, 3, -1, 1))
sketch4.addConstraint(Sketcher.Constraint("Symmetric", 11, 3, 23, 3, -1, 1))
sketch4.addConstraint(Sketcher.Constraint("Symmetric", 2, 2, 13, 2, -1, 1))
sketch4.addConstraint(Sketcher.Constraint("Symmetric", 6, 2, 18, 2, -1, 1))
sketch4.addConstraint(Sketcher.Constraint("Symmetric", 1, 3, 9, 3, -2))
sketch4.addConstraint(Sketcher.Constraint("Symmetric", 5, 3, 11, 3, -2))
sketch4.addConstraint(Sketcher.Constraint("Symmetric", 3, 2, 6, 2, -2))
sketch4.addConstraint(Sketcher.Constraint("Horizontal", 1, 3, 5, 3))
sketch4.addConstraint(Sketcher.Constraint("Horizontal", 1, 1, 4, 2))
sketch4.addConstraint(Sketcher.Constraint("Horizontal", 4, 2, 8, 2))
sketch4.addConstraint(Sketcher.Constraint("Horizontal", 5, 1, 9, 1))
sketch4.addConstraint(Sketcher.Constraint("Horizontal", 12, 1, 15, 2))
sketch4.addConstraint(Sketcher.Constraint("Horizontal", 15, 2, 20, 2))
sketch4.addConstraint(Sketcher.Constraint("Horizontal", 17, 2, 21, 1))
sketch4.addConstraint(Sketcher.Constraint("Vertical", 0, 2, 1, 1))
sketch4.addConstraint(Sketcher.Constraint("Vertical", 15, 2, 16, 1))
sketch4.addConstraint(Sketcher.Constraint("DistanceX", 0, 1, 0, 2, Q("1 in")))
sketch4.addConstraint(Sketcher.Constraint("DistanceY", -1, 1, 0, 2, Q("2 in")))
sketch4.addConstraint(Sketcher.Constraint("DistanceX", 9, 3, 5, 3, Q("2 in")))
sketch4.addConstraint(Sketcher.Constraint("DistanceY", -1, 1, 2, 2, Q("2.5 in")))
sketch4.addConstraint(Sketcher.Constraint("Radius", 1, Q("0.0884 in")))
sketch4.addConstraint(Sketcher.Constraint("DistanceY", 2, 1, 2, 2, Q("9.524581 mm")))
pad2 = body.newObject("PartDesign::Pad", "Pad001")
pad2.Profile = sketch4
pad2.Length = Q("0.5 in")
pad2.Reversed = True

sketch5 = body.newObject("Sketcher::SketchObject", "Sketch004")
sketch5.AttachmentSupport = (doc.getObject("YZ_Plane"), [""])
sketch5.MapMode = "FlatFace"
sketch5.AttachmentOffset = App.Placement(Vector(0, 0, 0.5 * 25.4), App.Rotation())
sketch5.addGeometry(Part.Circle(Vector(-22.225, 22.225, 0), Vector(0, 0, 1), 2.5527), False)
sketch5.addGeometry(Part.Circle(Vector(-22.225, 3.175, 0), Vector(0, 0, 1), 2.5527), False)
sketch5.addGeometry(Part.Circle(Vector(-22.225, -15.875, 0), Vector(0, 0, 1), 2.5527), False)
sketch5.addGeometry(Part.Circle(Vector(-22.225, -34.925, 0), Vector(0, 0, 1), 2.5527), False)
sketch5.addGeometry(Part.Circle(Vector(39.687709, 52.387709, 0), Vector(0, 0, 1), 2.24536), False)
sketch5.addGeometry(Part.Circle(Vector(11.112291, 52.387709, 0), Vector(0, 0, 1), 2.24536), False)
sketch5.addGeometry(Part.Circle(Vector(-11.112291, 52.387709, 0), Vector(0, 0, 1), 2.24536), False)
sketch5.addGeometry(Part.Circle(Vector(-39.687709, 52.387709, 0), Vector(0, 0, 1), 2.24536), False)
sketch5.addGeometry(Part.Circle(Vector(39.687709, -52.387709, 0), Vector(0, 0, 1), 2.24536), False)
sketch5.addGeometry(Part.Circle(Vector(11.112291, -52.387709, 0), Vector(0, 0, 1), 2.24536), False)
sketch5.addGeometry(Part.Circle(Vector(-11.112291, -52.387709, 0), Vector(0, 0, 1), 2.24536), False)
sketch5.addGeometry(Part.Circle(Vector(-39.687709, -52.387709, 0), Vector(0, 0, 1), 2.24536), False)
sketch5.addConstraint(Sketcher.Constraint("Equal", 0, 1))
sketch5.addConstraint(Sketcher.Constraint("Equal", 1, 2))
sketch5.addConstraint(Sketcher.Constraint("Equal", 2, 3))
sketch5.addConstraint(Sketcher.Constraint("Equal", 4, 5))
sketch5.addConstraint(Sketcher.Constraint("Equal", 5, 6))
sketch5.addConstraint(Sketcher.Constraint("Equal", 6, 7))
sketch5.addConstraint(Sketcher.Constraint("Equal", 7, 8))
sketch5.addConstraint(Sketcher.Constraint("Equal", 8, 9))
sketch5.addConstraint(Sketcher.Constraint("Equal", 9, 10))
sketch5.addConstraint(Sketcher.Constraint("Equal", 10, 11))
sketch5.addConstraint(Sketcher.Constraint("Symmetric", 7, 3, 8, 3, -1, 1))
sketch5.addConstraint(Sketcher.Constraint("Symmetric", 6, 3, 9, 3, -1, 1))
sketch5.addConstraint(Sketcher.Constraint("Symmetric", 5, 3, 10, 3, -1, 1))
sketch5.addConstraint(Sketcher.Constraint("Symmetric", 4, 3, 11, 3, -1, 1))
sketch5.addConstraint(Sketcher.Constraint("Symmetric", 5, 3, 6, 3, -2))
sketch5.addConstraint(Sketcher.Constraint("Symmetric", 4, 3, 7, 3, -2))
sketch5.addConstraint(Sketcher.Constraint("Horizontal", 4, 3, 5, 3))
sketch5.addConstraint(Sketcher.Constraint("Vertical", 0, 3, 1, 3))
sketch5.addConstraint(Sketcher.Constraint("Vertical", 1, 3, 2, 3))
sketch5.addConstraint(Sketcher.Constraint("Vertical", 2, 3, 3, 3))
sketch5.addConstraint(Sketcher.Constraint("Diameter", 0, Q("0.201 in")))
sketch5.addConstraint(Sketcher.Constraint("DistanceX", 6, 3, 4, 3, Q("2 in")))
sketch5.addConstraint(Sketcher.Constraint("Diameter", 4, Q("0.1768 in")))
sketch5.addConstraint(Sketcher.Constraint("DistanceY", 2, 3, 0, 3, Q("1.5 in")))
sketch5.addConstraint(Sketcher.Constraint("DistanceY", 3, 3, 1, 3, Q("1.5 in")))
sketch5.addConstraint(Sketcher.Constraint("DistanceY", 1, 3, 0, 3, Q("0.75 in")))
sketch5.addConstraint(Sketcher.Constraint("DistanceX", 0, 3, -1, 1, Q("0.875 in")))
sketch5.addConstraint(Sketcher.Constraint("DistanceY", -1, 1, 0, 3, Q("0.875 in")))
sketch5.addConstraint(Sketcher.Constraint("DistanceX", -1, 1, 4, 3, Q("39.687709 mm")))
sketch5.addConstraint(Sketcher.Constraint("DistanceY", -1, 1, 4, 3, Q("52.387709 mm")))
pocket3 = body.newObject("PartDesign::Pocket", "Pocket002")
pocket3.Profile = sketch5
pocket3.Type = "ThroughAll"

doc.recompute()
